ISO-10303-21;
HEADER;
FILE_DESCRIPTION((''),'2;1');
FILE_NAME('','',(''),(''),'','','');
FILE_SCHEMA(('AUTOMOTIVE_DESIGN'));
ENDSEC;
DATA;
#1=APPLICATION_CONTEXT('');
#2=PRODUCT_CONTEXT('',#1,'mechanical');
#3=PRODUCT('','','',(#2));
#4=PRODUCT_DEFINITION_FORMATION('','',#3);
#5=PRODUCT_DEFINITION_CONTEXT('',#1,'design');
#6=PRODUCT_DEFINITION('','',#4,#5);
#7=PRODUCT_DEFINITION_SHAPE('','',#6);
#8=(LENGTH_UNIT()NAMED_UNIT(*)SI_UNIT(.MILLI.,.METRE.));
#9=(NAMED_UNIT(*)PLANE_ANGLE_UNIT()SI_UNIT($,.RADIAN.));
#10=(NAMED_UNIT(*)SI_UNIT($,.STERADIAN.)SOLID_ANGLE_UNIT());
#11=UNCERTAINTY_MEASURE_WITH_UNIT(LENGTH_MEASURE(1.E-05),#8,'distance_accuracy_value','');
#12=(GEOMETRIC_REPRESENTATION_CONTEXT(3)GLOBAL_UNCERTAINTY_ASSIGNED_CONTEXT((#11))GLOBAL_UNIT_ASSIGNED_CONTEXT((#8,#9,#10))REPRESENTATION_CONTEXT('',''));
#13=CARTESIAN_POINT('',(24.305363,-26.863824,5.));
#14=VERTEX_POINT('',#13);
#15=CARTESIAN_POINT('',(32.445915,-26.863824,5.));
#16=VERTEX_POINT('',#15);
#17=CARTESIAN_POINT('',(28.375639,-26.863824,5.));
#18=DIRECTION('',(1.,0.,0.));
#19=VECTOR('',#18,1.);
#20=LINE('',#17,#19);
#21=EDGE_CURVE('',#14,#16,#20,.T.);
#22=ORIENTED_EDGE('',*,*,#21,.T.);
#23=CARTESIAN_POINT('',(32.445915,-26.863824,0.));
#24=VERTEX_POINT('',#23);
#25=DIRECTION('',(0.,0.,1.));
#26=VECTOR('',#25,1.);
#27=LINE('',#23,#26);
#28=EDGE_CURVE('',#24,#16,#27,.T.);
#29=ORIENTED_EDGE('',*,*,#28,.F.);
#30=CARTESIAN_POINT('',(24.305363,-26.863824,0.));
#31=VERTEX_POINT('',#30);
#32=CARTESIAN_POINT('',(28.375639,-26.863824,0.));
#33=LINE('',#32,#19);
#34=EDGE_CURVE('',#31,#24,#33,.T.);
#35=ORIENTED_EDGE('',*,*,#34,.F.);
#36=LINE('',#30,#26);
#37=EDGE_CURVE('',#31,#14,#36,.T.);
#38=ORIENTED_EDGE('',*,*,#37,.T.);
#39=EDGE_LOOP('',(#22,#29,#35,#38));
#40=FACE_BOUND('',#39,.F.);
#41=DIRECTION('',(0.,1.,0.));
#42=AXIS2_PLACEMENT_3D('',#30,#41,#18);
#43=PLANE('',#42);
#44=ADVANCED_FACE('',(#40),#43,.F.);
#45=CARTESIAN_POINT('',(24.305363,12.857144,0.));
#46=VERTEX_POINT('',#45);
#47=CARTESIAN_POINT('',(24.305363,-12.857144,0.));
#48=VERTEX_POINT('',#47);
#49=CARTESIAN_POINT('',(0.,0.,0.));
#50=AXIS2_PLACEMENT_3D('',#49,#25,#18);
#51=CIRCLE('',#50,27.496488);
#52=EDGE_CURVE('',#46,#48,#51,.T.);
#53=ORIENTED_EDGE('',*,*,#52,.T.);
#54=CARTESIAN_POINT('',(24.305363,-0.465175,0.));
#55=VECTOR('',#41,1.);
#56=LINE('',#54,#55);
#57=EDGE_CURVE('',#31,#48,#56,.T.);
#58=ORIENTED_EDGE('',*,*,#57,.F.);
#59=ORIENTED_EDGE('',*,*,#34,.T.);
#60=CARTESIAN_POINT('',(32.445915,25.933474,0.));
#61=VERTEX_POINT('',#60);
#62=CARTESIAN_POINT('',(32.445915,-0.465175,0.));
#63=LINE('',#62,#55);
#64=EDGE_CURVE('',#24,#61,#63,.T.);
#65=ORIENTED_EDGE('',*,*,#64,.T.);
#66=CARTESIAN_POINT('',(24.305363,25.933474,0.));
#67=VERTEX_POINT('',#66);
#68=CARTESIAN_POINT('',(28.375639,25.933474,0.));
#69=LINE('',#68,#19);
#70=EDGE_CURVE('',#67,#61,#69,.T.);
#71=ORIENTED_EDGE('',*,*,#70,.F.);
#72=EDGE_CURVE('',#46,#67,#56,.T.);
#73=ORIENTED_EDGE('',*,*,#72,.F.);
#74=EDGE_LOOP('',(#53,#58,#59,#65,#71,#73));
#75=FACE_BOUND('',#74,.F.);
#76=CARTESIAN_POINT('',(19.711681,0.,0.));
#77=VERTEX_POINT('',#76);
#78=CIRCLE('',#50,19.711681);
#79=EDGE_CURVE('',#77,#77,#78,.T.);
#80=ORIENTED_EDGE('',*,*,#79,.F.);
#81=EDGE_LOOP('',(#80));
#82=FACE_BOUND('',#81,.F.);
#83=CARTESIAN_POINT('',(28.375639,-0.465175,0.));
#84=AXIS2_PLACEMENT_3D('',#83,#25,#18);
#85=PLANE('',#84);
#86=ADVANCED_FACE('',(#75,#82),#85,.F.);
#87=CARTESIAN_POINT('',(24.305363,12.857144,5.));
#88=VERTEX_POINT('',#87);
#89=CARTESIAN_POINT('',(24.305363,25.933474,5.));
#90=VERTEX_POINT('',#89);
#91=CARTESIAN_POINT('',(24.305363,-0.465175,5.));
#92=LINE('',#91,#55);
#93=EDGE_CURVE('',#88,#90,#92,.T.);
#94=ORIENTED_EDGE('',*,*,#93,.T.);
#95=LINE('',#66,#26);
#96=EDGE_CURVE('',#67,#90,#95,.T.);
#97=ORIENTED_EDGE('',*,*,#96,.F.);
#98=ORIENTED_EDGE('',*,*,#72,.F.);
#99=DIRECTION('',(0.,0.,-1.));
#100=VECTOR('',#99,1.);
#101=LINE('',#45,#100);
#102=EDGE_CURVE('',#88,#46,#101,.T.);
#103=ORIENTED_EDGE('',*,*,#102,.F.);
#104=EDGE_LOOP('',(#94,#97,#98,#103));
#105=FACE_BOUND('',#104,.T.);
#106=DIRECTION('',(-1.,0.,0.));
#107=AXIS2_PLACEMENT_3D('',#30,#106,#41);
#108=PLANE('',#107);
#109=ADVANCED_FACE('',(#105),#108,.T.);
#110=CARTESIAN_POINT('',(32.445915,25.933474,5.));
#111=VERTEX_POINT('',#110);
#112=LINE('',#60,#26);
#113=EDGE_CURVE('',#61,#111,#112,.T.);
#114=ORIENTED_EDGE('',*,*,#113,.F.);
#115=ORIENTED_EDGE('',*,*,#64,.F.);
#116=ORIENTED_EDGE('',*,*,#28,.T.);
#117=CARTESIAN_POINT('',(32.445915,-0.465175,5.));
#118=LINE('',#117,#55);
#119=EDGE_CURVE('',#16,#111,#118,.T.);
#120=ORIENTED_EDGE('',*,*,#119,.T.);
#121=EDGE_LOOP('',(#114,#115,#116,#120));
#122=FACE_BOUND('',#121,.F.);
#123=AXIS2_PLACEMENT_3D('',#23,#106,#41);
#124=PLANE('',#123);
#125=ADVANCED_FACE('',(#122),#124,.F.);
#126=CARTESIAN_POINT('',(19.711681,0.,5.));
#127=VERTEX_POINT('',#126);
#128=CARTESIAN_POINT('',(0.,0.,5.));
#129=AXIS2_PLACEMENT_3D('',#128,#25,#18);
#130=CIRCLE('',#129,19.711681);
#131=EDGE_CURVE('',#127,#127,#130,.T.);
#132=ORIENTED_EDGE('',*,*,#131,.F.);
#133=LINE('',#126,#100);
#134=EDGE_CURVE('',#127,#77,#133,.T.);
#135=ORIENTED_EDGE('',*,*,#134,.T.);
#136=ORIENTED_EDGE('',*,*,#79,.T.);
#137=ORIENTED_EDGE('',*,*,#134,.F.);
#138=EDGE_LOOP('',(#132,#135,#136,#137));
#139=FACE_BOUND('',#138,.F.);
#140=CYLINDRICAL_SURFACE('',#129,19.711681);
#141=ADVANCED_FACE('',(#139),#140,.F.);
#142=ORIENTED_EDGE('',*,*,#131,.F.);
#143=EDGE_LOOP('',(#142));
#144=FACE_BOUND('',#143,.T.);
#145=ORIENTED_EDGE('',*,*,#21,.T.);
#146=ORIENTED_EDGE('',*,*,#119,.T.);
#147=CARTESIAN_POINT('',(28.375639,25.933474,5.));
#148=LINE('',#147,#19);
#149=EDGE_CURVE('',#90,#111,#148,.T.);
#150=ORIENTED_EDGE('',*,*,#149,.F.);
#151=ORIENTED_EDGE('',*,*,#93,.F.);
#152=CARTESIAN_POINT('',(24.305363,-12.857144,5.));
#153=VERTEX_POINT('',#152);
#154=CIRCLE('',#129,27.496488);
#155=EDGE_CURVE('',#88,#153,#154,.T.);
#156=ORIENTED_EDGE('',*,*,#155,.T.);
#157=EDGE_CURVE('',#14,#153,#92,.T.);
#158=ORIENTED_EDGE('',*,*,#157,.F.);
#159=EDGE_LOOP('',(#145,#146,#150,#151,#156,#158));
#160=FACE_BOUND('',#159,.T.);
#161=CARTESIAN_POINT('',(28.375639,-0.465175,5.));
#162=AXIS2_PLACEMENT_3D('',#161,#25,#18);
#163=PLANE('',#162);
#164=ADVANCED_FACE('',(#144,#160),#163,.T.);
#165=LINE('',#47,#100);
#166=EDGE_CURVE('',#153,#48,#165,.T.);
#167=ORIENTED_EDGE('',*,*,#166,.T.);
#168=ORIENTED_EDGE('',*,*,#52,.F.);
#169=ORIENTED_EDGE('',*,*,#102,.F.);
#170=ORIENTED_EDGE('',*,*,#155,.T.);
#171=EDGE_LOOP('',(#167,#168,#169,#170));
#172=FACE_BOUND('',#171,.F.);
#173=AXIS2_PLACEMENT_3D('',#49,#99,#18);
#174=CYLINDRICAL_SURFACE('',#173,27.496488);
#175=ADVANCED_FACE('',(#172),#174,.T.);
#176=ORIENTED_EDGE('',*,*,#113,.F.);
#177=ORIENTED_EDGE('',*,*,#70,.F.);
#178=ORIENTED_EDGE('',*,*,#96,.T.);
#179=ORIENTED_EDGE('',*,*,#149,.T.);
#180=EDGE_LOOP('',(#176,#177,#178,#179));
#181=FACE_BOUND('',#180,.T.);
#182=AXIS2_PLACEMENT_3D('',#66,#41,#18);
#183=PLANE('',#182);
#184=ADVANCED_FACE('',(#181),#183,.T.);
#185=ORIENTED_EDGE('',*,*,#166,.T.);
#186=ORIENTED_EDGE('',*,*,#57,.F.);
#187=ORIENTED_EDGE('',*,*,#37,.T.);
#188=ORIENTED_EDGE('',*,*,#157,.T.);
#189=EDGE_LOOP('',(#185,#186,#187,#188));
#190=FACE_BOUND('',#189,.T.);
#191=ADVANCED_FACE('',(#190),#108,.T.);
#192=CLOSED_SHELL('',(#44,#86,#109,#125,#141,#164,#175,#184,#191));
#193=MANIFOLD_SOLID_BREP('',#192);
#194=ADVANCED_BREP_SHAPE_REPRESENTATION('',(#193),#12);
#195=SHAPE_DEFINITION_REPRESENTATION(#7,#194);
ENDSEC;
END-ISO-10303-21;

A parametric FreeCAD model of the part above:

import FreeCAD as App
import Part
import Sketcher
from FreeCAD import Vector
Q = App.Units.Quantity

doc = App.newDocument("Part")
body = doc.addObject("PartDesign::Body", "Body")

# Sketch on XY plane
sketch1 = body.newObject("Sketcher::SketchObject", "Sketch")
sketch1.AttachmentSupport = (doc.getObject("XY_Plane"), [""])
sketch1.MapMode = "FlatFace"
sketch1.addGeometry(Part.Circle(Vector(0, 0, 0), Vector(0, 0, 1), 27), False)
sketch1.addConstraint(Sketcher.Constraint("Coincident", 0, 3, -1, 1))
sketch1.addConstraint(Sketcher.Constraint("Diameter", 0, Q("54.992976 mm")))
pad1 = body.newObject("PartDesign::Pad", "Pad")
pad1.Profile = sketch1
pad1.Length = 5

# Sketch on XY plane
sketch2 = body.newObject("Sketcher::SketchObject", "Sketch001")
sketch2.AttachmentSupport = (doc.getObject("XY_Plane"), [""])
sketch2.MapMode = "FlatFace"
sketch2.AttachmentOffset = App.Placement(Vector(0, 0, 5), App.Rotation())
sketch2.addGeometry(Part.Circle(Vector(0, 0, 0), Vector(0, 0, 1), 20), False)
sketch2.addConstraint(Sketcher.Constraint("Coincident", 0, 3, -1, 1))
sketch2.addConstraint(Sketcher.Constraint("Diameter", 0, Q("39.423362 mm")))
pocket1 = body.newObject("PartDesign::Pocket", "Pocket")
pocket1.Profile = sketch2
pocket1.Length = 5

# Sketch on XY plane
sketch3 = body.newObject("Sketcher::SketchObject", "Sketch002")
sketch3.AttachmentSupport = (doc.getObject("XY_Plane"), [""])
sketch3.MapMode = "FlatFace"
sketch3.addGeometry(Part.LineSegment(Vector(24, 26, 0), Vector(24, -27, 0)), False)
sketch3.addGeometry(Part.LineSegment(Vector(24, -27, 0), Vector(32, -27, 0)), False)
sketch3.addGeometry(Part.LineSegment(Vector(32, -27, 0), Vector(32, 26, 0)), False)
sketch3.addGeometry(Part.LineSegment(Vector(32, 26, 0), Vector(24, 26, 0)), False)
sketch3.addConstraint(Sketcher.Constraint("Coincident", 0, 2, 1, 1))
sketch3.addConstraint(Sketcher.Constraint("Coincident", 1, 2, 2, 1))
sketch3.addConstraint(Sketcher.Constraint("Coincident", 2, 2, 3, 1))
sketch3.addConstraint(Sketcher.Constraint("Coincident", 3, 2, 0, 1))
sketch3.addConstraint(Sketcher.Constraint("Vertical", 0))
sketch3.addConstraint(Sketcher.Constraint("Horizontal", 1))
sketch3.addConstraint(Sketcher.Constraint("Vertical", 2))
sketch3.addConstraint(Sketcher.Constraint("Horizontal", 3))
sketch3.addConstraint(Sketcher.Constraint("DistanceY", 0, 2, 0, 1, Q("52.797299 mm")))
sketch3.addConstraint(Sketcher.Constraint("DistanceX", 1, 1, 1, 2, Q("8.140551 mm")))
sketch3.addConstraint(Sketcher.Constraint("DistanceX", -1, 1, 0, 2, Q("24.305363 mm")))
sketch3.addConstraint(Sketcher.Constraint("DistanceY", 0, 2, -1, 1, Q("26.863824 mm")))
pad2 = body.newObject("PartDesign::Pad", "Pad001")
pad2.Profile = sketch3
pad2.Length = 5

doc.recompute()
